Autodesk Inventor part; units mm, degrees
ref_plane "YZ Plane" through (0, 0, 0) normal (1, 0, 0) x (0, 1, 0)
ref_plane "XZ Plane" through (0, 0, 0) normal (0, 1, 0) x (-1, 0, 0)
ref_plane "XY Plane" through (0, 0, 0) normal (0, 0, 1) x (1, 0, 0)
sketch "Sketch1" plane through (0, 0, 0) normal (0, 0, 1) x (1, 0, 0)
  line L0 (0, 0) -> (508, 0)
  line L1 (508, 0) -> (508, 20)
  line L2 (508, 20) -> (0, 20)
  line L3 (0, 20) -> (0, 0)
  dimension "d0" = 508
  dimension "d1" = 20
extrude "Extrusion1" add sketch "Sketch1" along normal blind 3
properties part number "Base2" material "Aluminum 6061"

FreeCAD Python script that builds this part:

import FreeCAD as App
import Part
import Sketcher
from FreeCAD import Vector
Q = App.Units.Quantity

doc = App.newDocument("Part")
body = doc.addObject("PartDesign::Body", "Body")

# Sketch on XY plane
sketch1 = doc.addObject("Sketcher::SketchObject", "Sketch")
body.addObject(sketch1)
sketch1.AttachmentSupport = (doc.XY_Plane, [""])
sketch1.MapMode = "FlatFace"
sketch1.addGeometry([
    Part.LineSegment(Vector(0, 20, 0), Vector(0, 0, 0)),
    Part.LineSegment(Vector(0, 0, 0), Vector(508, 0, 0)),
    Part.LineSegment(Vector(508, 0, 0), Vector(508, 20, 0)),
    Part.LineSegment(Vector(508, 20, 0), Vector(0, 20, 0)),
], False)
sketch1.addConstraint([
    Sketcher.Constraint("Coincident", 0, 2, 1, 1),
    Sketcher.Constraint("Coincident", 1, 2, 2, 1),
    Sketcher.Constraint("Coincident", 2, 2, 3, 1),
    Sketcher.Constraint("Coincident", 3, 2, 0, 1),
    Sketcher.Constraint("Vertical", 0),
    Sketcher.Constraint("Horizontal", 1),
    Sketcher.Constraint("Vertical", 2),
    Sketcher.Constraint("Horizontal", 3),
    Sketcher.Constraint("Coincident", 0, 2, -1, 1),
    Sketcher.Constraint("DistanceX", 1, 1, 1, 2, Q("20 in")),
    Sketcher.Constraint("DistanceY", 0, 2, 0, 1, Q("0.7874 in")),
])
pad1 = doc.addObject("PartDesign::Pad", "Pad")
body.addObject(pad1)
pad1.Profile = sketch1
pad1.Length = Q("0.1181102 in")

doc.recompute()
